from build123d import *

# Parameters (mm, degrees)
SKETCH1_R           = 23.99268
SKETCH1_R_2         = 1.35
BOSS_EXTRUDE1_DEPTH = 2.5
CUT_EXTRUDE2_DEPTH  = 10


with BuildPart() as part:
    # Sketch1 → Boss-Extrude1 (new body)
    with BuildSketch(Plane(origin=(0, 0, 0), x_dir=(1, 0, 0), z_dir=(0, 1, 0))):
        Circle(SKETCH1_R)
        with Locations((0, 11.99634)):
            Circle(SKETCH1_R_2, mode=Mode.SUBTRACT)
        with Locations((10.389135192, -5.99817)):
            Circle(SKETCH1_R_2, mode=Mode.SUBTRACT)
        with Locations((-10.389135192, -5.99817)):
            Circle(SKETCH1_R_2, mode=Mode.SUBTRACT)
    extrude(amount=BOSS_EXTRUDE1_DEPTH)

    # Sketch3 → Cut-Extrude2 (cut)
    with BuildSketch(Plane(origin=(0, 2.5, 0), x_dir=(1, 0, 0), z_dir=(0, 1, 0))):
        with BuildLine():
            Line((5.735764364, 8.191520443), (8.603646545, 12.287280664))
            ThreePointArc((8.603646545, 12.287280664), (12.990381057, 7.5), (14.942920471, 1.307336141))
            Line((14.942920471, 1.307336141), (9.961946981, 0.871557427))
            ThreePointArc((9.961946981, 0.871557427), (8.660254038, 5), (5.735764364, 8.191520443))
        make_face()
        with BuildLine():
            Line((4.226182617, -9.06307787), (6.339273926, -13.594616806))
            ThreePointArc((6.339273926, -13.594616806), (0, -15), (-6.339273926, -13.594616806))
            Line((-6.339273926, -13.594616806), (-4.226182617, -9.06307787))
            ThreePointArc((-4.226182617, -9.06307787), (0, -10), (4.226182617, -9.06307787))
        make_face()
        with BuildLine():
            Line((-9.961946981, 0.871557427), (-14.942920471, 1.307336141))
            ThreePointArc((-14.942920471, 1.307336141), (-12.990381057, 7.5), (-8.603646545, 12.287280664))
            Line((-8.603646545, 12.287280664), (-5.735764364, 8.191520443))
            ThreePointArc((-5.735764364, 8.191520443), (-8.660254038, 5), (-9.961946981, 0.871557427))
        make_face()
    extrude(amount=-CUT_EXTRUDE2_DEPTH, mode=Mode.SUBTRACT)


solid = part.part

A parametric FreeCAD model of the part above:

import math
import FreeCAD as App
import Part
import Sketcher

V = App.Vector
Q = App.Units.Quantity

doc = App.newDocument("Part")
body = doc.addObject("PartDesign::Body", "Body")

# Sketch on XZ plane
sketch1 = body.newObject("Sketcher::SketchObject", "Sketch")
sketch1.AttachmentSupport = (doc.getObject("XZ_Plane"), [""])
sketch1.MapMode = "FlatFace"
sketch1.addGeometry(Part.Circle(V(0, 0, 0), V(0, 0, 1), 24), False)
sketch1.addGeometry(Part.Circle(V(-10.4, 6, 0), V(0, 0, 1), 1.4), False)
sketch1.addGeometry(Part.Circle(V(10.4, 6, 0), V(0, 0, 1), 1.4), False)
sketch1.addGeometry(Part.Circle(V(0, -12, 0), V(0, 0, 1), 1.4), False)
sketch1.addConstraint(Sketcher.Constraint("Coincident", 0, 3, -1, 1))
sketch1.addConstraint(Sketcher.Constraint("Equal", 1, 2))
sketch1.addConstraint(Sketcher.Constraint("Equal", 2, 3))
sketch1.addConstraint(Sketcher.Constraint("Symmetric", 1, 3, 2, 3, -2))
sketch1.addConstraint(Sketcher.Constraint("PointOnObject", 3, 3, -2))
sketch1.addConstraint(Sketcher.Constraint("Diameter", 1, Q("2.7 mm")))
sketch1.addConstraint(Sketcher.Constraint("Diameter", 0, Q("47.98536 mm")))
sketch1.addConstraint(Sketcher.Constraint("DistanceY", -1, 1, 1, 3, Q("5.99817 mm")))
sketch1.addConstraint(Sketcher.Constraint("DistanceY", 3, 3, -1, 1, Q("11.99634 mm")))
sketch1.addConstraint(Sketcher.Constraint("DistanceX", 1, 3, 2, 3, Q("20.77827 mm")))
pad1 = body.newObject("PartDesign::Pad", "Pad")
pad1.Profile = sketch1
pad1.Length = 2.5
pad1.Reversed = True

# Sketch on XZ plane
sketch2 = body.newObject("Sketcher::SketchObject", "Sketch001")
sketch2.AttachmentSupport = (doc.getObject("XZ_Plane"), [""])
sketch2.MapMode = "FlatFace"
sketch2.AttachmentOffset = App.Placement(V(0, 0, -2.5), App.Rotation())
sketch2.addGeometry(Part.LineSegment(V(8.6, -12.3, 0), V(5.7, -8.2, 0)), False)
sketch2.addGeometry(Part.ArcOfCircle(Part.Circle(V(0, 0, 0), V(0, 0, 1), 10), math.radians(-55), math.radians(-5)), False)
sketch2.addGeometry(Part.LineSegment(V(10, -0.9, 0), V(14.9, -1.3, 0)), False)
sketch2.addGeometry(Part.ArcOfCircle(Part.Circle(V(0, 0, 0), V(0, 0, 1), 15), math.radians(-55), math.radians(-5)), False)
sketch2.addGeometry(Part.LineSegment(V(6.3, 13.6, 0), V(4.2, 9.1, 0)), False)
sketch2.addGeometry(Part.ArcOfCircle(Part.Circle(V(0, 0, 0), V(0, 0, 1), 10), math.radians(65), math.radians(115)), False)
sketch2.addGeometry(Part.LineSegment(V(-4.2, 9.1, 0), V(-6.3, 13.6, 0)), False)
sketch2.addGeometry(Part.ArcOfCircle(Part.Circle(V(0, 0, 0), V(0, 0, 1), 15), math.radians(65), math.radians(115)), False)
sketch2.addGeometry(Part.LineSegment(V(-14.9, -1.3, 0), V(-10, -0.9, 0)), False)
sketch2.addGeometry(Part.ArcOfCircle(Part.Circle(V(0, 0, 0), V(0, 0, 1), 10), math.radians(-175), math.radians(-125)), False)
sketch2.addGeometry(Part.LineSegment(V(-5.7, -8.2, 0), V(-8.6, -12.3, 0)), False)
sketch2.addGeometry(Part.ArcOfCircle(Part.Circle(V(0, 0, 0), V(0, 0, 1), 15), math.radians(-175), math.radians(-125)), False)
sketch2.addConstraint(Sketcher.Constraint("Coincident", 0, 2, 1, 1))
sketch2.addConstraint(Sketcher.Constraint("Coincident", 1, 2, 2, 1))
sketch2.addConstraint(Sketcher.Constraint("Coincident", 2, 2, 3, 2))
sketch2.addConstraint(Sketcher.Constraint("Coincident", 3, 1, 0, 1))
sketch2.addConstraint(Sketcher.Constraint("Coincident", 4, 2, 5, 1))
sketch2.addConstraint(Sketcher.Constraint("Coincident", 5, 2, 6, 1))
sketch2.addConstraint(Sketcher.Constraint("Coincident", 6, 2, 7, 2))
sketch2.addConstraint(Sketcher.Constraint("Coincident", 7, 1, 4, 1))
sketch2.addConstraint(Sketcher.Constraint("Coincident", 8, 2, 9, 1))
sketch2.addConstraint(Sketcher.Constraint("Coincident", 9, 2, 10, 1))
sketch2.addConstraint(Sketcher.Constraint("Coincident", 10, 2, 11, 2))
sketch2.addConstraint(Sketcher.Constraint("Coincident", 11, 1, 8, 1))
sketch2.addConstraint(Sketcher.Constraint("Coincident", 1, 3, -1, 1))
sketch2.addConstraint(Sketcher.Constraint("Coincident", 3, 3, -1, 1))
sketch2.addConstraint(Sketcher.Constraint("Coincident", 5, 3, -1, 1))
sketch2.addConstraint(Sketcher.Constraint("Coincident", 7, 3, -1, 1))
sketch2.addConstraint(Sketcher.Constraint("Coincident", 9, 3, -1, 1))
sketch2.addConstraint(Sketcher.Constraint("Coincident", 11, 3, -1, 1))
sketch2.addConstraint(Sketcher.Constraint("Equal", 1, 5))
sketch2.addConstraint(Sketcher.Constraint("Equal", 3, 7))
sketch2.addConstraint(Sketcher.Constraint("Equal", 5, 9))
sketch2.addConstraint(Sketcher.Constraint("Equal", 7, 11))
sketch2.addConstraint(Sketcher.Constraint("Horizontal", 4, 2, 5, 2))
sketch2.addConstraint(Sketcher.Constraint("Horizontal", 6, 2, 7, 1))
sketch2.addConstraint(Sketcher.Constraint("Horizontal", 1, 2, 8, 2))
sketch2.addConstraint(Sketcher.Constraint("Horizontal", 0, 2, 9, 2))
sketch2.addConstraint(Sketcher.Constraint("Horizontal", 3, 1, 10, 2))
sketch2.addConstraint(Sketcher.Constraint("Horizontal", 2, 2, 11, 1))
sketch2.addConstraint(Sketcher.Constraint("Radius", 1, Q("10 mm")))
sketch2.addConstraint(Sketcher.Constraint("Radius", 3, Q("15 mm")))
sketch2.addConstraint(Sketcher.Constraint("Angle", 0, Q("125 deg")))
sketch2.addConstraint(Sketcher.Constraint("Angle", 2, Q("-5 deg")))
sketch2.addConstraint(Sketcher.Constraint("Angle", 4, Q("-115 deg")))
sketch2.addConstraint(Sketcher.Constraint("DistanceX", 3, 1, 1, 2, Q("1.3583 mm")))
sketch2.addConstraint(Sketcher.Constraint("DistanceY", 0, 2, -1, 1, Q("8.19152 mm")))
sketch2.addConstraint(Sketcher.Constraint("DistanceX", -1, 1, 4, 2, Q("4.226183 mm")))
pocket1 = body.newObject("PartDesign::Pocket", "Pocket")
pocket1.Profile = sketch2
pocket1.Length = 10
pocket1.Reversed = True

doc.recompute()
